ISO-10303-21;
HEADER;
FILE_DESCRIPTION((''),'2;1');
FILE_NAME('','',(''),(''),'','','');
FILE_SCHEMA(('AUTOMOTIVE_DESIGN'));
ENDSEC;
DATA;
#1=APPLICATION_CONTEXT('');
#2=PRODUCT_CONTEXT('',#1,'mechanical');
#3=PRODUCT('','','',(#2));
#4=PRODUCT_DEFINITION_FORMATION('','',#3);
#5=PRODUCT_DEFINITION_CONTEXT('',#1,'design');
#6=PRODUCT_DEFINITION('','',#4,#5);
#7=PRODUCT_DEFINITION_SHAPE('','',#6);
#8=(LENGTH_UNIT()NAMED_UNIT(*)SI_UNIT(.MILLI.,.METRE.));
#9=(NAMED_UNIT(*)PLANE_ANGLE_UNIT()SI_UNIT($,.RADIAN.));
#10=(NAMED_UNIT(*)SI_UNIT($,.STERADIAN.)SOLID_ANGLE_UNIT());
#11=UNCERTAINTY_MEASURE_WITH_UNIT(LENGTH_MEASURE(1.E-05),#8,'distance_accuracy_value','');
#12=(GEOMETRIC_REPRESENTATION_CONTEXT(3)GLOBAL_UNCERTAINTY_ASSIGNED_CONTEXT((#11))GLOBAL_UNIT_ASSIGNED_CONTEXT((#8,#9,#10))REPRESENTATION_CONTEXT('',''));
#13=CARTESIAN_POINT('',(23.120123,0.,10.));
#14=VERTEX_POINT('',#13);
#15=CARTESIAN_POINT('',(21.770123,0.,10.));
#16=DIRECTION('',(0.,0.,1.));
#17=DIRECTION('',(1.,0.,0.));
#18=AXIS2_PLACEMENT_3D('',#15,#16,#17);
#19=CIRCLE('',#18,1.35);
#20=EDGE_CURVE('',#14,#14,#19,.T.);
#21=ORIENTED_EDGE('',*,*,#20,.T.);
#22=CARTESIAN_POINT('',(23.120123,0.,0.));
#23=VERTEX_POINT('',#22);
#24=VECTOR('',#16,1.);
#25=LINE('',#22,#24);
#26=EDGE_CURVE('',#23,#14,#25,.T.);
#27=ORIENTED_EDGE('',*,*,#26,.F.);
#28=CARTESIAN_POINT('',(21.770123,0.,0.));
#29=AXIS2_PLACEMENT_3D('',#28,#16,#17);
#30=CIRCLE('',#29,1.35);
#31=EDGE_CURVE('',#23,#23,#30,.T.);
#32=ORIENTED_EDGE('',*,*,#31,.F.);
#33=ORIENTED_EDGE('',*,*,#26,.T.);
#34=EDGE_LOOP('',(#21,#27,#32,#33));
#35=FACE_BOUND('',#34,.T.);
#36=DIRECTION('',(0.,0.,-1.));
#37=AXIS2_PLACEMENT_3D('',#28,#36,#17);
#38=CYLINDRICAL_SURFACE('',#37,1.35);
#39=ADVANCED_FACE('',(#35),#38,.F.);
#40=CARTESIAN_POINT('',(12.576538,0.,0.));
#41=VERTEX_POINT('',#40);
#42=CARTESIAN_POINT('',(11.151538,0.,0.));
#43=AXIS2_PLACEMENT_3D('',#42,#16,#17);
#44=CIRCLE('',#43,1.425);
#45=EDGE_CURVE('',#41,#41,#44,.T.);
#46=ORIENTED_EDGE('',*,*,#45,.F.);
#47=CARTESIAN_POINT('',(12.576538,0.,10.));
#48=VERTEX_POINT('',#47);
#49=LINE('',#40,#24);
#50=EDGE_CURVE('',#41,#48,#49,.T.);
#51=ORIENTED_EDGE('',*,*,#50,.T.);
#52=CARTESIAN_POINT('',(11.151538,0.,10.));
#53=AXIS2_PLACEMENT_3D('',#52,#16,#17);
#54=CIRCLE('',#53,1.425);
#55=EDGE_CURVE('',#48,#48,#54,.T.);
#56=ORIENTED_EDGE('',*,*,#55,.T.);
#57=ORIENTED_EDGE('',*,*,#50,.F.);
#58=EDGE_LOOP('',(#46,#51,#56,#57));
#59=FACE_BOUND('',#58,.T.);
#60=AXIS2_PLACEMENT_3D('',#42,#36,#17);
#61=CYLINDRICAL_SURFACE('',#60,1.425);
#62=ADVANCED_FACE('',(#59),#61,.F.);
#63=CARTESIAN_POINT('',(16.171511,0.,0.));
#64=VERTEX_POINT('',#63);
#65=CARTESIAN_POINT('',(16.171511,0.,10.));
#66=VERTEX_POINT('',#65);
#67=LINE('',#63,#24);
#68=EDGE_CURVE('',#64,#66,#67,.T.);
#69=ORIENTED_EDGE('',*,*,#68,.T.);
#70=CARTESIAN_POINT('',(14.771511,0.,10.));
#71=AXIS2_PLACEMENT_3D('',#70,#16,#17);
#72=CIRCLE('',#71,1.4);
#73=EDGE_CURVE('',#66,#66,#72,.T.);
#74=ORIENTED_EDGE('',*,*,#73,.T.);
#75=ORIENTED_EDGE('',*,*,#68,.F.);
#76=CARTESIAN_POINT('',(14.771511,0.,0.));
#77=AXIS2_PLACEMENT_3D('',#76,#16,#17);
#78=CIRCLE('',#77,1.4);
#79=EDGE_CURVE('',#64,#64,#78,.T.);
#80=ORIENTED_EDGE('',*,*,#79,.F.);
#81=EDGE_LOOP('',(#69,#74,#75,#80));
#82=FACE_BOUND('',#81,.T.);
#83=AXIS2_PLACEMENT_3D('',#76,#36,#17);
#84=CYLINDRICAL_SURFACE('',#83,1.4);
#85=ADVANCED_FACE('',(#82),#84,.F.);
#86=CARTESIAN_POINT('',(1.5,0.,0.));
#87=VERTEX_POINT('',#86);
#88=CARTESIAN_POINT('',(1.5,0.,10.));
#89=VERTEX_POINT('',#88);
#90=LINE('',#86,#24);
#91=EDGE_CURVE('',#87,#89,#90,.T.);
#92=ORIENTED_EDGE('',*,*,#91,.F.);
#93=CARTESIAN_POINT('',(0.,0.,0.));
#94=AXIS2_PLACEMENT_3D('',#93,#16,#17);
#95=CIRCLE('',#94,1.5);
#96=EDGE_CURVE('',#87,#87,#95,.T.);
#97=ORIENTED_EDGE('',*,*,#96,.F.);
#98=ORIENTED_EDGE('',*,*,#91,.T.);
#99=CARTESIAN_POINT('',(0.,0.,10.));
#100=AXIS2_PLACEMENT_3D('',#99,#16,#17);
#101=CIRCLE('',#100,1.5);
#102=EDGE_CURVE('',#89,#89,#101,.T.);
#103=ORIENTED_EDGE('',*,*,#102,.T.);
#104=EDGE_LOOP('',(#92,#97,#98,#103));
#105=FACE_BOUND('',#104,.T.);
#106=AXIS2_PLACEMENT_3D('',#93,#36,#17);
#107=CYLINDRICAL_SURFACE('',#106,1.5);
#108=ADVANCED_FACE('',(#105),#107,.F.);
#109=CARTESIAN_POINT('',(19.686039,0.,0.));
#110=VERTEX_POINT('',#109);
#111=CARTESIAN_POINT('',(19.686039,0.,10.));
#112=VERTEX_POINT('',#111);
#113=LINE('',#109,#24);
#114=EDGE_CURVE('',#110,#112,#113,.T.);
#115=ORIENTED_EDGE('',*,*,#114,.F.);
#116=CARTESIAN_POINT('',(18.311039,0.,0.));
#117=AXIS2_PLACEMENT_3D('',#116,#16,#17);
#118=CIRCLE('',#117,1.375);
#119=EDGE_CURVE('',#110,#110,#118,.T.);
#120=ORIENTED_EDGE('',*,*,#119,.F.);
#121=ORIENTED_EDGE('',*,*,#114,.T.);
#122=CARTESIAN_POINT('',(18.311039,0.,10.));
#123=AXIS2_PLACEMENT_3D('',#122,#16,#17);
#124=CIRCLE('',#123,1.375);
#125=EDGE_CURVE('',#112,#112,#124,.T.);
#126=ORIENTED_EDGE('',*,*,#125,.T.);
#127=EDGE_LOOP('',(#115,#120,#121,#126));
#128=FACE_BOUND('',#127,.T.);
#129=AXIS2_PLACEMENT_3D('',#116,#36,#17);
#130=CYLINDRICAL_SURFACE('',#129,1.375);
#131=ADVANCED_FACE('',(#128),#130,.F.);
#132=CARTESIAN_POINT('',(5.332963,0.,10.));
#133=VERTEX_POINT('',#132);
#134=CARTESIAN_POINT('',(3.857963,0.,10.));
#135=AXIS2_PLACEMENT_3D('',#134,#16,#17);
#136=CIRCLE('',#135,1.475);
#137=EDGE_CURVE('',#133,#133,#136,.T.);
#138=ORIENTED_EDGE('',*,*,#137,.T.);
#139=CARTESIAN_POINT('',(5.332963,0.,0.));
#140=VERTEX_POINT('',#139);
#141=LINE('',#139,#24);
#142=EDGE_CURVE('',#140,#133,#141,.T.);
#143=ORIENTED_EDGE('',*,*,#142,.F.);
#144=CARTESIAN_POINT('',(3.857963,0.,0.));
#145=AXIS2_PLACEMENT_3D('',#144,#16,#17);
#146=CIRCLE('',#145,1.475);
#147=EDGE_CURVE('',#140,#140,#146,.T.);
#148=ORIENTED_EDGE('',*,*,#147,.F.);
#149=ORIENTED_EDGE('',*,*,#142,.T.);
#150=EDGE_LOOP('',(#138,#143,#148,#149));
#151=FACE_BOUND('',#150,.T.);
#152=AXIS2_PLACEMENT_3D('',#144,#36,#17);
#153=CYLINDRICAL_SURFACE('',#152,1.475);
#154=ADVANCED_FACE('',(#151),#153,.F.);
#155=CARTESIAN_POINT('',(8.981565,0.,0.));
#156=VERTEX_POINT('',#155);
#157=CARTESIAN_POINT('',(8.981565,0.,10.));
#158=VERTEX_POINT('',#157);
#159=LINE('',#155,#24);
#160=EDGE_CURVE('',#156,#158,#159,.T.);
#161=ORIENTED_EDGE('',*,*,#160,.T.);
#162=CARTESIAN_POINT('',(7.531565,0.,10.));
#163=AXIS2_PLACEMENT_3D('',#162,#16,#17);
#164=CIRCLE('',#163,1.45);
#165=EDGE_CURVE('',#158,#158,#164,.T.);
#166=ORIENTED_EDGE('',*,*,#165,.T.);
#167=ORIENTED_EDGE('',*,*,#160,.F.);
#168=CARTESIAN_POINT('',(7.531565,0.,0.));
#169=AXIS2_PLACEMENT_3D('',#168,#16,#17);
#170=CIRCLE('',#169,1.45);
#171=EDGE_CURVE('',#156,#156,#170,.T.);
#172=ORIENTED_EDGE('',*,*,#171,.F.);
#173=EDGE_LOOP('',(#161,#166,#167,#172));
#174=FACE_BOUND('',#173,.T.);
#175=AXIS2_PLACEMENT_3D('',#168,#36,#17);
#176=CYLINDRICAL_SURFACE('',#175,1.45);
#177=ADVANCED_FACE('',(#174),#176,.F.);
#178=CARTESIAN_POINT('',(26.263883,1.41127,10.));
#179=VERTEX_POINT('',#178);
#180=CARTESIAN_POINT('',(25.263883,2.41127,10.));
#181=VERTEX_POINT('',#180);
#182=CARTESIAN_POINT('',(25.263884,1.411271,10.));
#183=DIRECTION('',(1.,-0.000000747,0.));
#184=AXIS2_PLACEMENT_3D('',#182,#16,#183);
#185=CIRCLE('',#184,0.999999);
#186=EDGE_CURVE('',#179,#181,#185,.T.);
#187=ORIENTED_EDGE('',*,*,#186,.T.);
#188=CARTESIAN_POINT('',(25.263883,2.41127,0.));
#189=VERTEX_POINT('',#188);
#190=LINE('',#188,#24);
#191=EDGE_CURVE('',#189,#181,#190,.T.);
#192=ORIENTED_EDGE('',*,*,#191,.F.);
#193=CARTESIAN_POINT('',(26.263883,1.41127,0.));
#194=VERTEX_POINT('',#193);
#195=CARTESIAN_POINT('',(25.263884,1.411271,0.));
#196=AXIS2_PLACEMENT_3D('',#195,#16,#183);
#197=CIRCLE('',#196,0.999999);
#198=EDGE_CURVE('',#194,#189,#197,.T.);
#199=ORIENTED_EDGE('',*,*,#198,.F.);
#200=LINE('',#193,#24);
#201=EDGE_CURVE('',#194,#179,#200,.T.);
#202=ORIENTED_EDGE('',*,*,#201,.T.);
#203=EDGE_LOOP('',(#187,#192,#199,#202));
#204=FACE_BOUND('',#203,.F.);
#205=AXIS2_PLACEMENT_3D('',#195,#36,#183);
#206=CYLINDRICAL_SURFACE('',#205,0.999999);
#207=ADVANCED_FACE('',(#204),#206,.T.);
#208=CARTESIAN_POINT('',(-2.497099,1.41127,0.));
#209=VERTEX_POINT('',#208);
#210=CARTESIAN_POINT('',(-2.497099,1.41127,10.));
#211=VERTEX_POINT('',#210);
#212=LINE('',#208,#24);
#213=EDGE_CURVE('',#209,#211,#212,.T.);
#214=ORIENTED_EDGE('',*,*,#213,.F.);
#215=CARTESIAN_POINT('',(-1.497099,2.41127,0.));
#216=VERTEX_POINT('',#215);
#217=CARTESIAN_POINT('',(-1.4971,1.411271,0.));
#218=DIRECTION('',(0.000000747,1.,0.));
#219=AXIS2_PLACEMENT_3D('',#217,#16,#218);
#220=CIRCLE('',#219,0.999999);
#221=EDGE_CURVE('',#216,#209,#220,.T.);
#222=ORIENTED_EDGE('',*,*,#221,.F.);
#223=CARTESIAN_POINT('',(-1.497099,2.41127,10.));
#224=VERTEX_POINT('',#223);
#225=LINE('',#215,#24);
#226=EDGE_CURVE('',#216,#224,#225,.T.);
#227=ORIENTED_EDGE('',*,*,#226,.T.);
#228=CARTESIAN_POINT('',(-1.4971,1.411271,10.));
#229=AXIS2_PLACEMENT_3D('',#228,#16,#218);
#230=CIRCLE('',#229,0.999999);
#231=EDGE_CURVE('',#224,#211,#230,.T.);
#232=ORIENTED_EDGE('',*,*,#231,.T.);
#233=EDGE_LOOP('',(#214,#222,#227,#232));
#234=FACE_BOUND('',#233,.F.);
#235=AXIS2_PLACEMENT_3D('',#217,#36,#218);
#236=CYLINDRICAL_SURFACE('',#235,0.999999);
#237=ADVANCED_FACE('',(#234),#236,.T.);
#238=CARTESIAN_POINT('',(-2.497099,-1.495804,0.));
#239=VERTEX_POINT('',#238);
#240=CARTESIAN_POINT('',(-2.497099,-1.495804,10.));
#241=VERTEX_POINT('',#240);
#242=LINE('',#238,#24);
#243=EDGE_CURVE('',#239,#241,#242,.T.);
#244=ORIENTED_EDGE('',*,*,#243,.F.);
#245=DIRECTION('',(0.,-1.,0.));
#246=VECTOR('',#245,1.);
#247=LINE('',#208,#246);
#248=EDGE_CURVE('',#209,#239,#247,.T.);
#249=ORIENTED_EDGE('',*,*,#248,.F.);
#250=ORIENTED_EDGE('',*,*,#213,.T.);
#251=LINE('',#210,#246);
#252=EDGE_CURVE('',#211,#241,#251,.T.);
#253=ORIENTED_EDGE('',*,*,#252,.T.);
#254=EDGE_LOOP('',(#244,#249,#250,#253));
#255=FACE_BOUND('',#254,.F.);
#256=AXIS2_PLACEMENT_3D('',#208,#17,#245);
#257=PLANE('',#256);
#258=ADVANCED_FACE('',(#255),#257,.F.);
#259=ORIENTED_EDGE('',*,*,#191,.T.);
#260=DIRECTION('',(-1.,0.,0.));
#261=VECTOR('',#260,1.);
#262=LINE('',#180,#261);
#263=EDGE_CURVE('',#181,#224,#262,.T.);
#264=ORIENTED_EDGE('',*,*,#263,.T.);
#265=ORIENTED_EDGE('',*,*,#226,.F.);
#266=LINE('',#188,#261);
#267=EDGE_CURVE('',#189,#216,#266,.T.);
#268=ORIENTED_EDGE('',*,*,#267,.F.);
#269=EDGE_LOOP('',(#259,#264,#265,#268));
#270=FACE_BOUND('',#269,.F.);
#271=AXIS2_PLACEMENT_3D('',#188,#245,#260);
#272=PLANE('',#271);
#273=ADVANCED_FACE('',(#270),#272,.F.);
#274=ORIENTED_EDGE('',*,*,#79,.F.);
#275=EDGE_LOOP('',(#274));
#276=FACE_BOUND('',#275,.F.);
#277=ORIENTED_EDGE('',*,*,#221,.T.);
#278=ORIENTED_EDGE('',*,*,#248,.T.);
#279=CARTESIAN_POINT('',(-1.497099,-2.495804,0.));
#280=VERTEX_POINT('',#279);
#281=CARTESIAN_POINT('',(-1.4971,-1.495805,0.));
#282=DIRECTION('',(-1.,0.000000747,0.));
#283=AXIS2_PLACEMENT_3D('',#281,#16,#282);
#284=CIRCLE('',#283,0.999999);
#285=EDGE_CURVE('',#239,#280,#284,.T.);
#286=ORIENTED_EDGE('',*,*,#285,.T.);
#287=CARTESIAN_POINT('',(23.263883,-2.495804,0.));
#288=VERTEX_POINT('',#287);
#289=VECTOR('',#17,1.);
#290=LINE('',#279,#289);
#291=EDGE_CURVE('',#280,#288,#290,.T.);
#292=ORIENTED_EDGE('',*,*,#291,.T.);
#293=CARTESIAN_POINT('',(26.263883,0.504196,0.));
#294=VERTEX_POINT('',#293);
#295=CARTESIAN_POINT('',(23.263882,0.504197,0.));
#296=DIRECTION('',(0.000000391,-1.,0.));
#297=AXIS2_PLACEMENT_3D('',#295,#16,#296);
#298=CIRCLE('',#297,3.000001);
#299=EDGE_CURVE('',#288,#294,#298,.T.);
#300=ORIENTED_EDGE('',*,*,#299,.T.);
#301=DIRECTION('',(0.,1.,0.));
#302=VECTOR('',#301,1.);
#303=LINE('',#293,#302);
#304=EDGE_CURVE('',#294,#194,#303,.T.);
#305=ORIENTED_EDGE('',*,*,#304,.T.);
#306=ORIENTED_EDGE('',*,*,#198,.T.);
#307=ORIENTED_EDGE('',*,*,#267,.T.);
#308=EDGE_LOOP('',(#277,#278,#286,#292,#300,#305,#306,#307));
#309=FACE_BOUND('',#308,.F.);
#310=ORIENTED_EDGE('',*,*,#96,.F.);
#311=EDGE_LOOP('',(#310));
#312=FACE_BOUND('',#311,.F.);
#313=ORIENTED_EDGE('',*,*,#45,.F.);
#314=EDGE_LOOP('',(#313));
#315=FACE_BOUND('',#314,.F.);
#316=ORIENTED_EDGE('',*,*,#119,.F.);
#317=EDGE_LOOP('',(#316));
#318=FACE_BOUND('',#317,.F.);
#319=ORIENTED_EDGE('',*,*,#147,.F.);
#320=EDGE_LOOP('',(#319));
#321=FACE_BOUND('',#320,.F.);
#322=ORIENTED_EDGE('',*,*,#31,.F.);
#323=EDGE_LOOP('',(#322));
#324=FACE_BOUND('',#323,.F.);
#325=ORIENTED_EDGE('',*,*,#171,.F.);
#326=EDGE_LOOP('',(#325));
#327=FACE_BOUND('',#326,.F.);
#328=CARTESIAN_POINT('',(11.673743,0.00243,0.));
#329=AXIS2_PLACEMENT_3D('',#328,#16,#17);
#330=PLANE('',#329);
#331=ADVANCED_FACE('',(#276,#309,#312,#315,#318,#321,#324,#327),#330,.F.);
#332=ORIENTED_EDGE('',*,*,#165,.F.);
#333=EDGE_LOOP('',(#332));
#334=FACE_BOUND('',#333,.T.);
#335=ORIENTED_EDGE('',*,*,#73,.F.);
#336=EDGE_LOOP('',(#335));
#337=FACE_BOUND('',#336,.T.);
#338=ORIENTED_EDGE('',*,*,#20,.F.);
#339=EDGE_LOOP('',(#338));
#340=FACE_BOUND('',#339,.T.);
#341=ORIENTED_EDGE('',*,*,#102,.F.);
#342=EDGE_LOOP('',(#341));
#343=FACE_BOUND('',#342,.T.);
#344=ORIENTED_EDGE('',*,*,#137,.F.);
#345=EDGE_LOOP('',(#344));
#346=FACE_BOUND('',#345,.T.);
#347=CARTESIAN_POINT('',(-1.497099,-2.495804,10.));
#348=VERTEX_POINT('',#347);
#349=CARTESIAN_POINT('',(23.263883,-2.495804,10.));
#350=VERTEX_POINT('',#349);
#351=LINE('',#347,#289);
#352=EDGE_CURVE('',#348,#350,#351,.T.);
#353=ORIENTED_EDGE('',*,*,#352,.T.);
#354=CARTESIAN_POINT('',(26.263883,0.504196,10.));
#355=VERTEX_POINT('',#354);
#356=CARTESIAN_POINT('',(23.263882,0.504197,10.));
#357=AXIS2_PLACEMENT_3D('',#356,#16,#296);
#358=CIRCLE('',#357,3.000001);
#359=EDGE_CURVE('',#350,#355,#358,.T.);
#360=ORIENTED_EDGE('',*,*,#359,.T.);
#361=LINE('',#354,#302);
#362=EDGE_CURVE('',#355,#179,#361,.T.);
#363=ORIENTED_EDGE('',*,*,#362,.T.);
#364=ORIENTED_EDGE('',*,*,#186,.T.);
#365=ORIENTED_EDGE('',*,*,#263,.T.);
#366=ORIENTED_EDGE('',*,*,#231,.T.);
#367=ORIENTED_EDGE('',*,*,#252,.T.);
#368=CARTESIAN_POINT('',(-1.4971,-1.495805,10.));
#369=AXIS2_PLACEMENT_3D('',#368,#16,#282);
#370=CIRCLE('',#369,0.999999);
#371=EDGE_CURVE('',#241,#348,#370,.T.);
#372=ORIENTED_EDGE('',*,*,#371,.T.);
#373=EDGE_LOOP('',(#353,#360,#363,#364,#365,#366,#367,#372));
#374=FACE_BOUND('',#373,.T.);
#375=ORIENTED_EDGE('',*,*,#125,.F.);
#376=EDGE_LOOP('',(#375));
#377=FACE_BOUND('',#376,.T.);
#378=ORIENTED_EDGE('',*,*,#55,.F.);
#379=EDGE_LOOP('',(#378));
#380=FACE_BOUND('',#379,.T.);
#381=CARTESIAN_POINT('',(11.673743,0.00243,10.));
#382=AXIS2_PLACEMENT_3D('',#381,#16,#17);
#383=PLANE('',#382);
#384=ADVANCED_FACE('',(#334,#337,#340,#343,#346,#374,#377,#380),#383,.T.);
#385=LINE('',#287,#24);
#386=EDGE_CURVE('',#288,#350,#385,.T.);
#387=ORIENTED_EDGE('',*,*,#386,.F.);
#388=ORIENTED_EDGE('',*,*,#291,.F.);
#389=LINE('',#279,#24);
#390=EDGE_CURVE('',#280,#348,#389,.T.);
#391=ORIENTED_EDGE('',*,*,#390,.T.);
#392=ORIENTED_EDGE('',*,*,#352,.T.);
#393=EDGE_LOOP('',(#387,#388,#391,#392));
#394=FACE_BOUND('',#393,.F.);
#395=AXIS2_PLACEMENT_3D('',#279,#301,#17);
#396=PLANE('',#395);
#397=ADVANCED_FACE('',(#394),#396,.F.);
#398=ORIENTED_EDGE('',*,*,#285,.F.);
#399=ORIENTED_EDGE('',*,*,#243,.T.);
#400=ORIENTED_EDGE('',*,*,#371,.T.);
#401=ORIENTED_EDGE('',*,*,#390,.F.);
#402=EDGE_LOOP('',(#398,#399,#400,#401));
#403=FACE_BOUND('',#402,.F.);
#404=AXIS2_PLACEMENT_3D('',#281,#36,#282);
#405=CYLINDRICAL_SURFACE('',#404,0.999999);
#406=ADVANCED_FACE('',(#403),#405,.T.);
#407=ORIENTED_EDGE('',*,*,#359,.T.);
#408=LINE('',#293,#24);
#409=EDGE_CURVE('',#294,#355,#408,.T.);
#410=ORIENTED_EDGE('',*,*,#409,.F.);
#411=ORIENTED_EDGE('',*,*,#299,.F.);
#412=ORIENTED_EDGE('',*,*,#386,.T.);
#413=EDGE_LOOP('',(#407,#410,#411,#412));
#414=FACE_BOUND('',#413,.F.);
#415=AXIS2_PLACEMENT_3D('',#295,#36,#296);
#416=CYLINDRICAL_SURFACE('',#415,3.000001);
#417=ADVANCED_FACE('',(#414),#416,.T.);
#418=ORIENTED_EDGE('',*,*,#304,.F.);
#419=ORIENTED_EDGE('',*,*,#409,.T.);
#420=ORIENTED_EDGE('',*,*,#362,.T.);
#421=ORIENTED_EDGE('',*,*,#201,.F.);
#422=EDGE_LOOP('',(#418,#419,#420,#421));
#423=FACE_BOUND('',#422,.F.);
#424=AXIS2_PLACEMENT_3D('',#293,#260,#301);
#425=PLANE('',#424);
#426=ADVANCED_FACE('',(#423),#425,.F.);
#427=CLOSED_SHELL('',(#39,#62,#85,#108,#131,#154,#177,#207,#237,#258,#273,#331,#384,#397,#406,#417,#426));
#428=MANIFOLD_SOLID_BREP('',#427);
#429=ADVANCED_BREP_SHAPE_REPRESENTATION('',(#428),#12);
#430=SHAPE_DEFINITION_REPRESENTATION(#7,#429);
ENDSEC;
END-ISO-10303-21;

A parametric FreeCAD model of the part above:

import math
import FreeCAD as App
import Part
import Sketcher
from FreeCAD import Vector

doc = App.newDocument("Part")
body = doc.addObject("PartDesign::Body", "Body")

sketch1 = body.newObject("Sketcher::SketchObject", "Sketch")
sketch1.AttachmentSupport = (doc.getObject("XY_Plane"), [""])
sketch1.MapMode = "FlatFace"
sketch1.addGeometry([
    Part.LineSegment(Vector(25.3, 2.4, 0), Vector(-1.5, 2.4, 0)),
    Part.ArcOfCircle(Part.Circle(Vector(-1.5, 1.4, 0), Vector(0, 0, 1), 1), math.radians(90), math.radians(180)),
    Part.LineSegment(Vector(-2.5, 1.4, 0), Vector(-2.5, -1.5, 0)),
    Part.ArcOfCircle(Part.Circle(Vector(-1.5, -1.5, 0), Vector(0, 0, 1), 1), math.radians(180), math.radians(270)),
    Part.LineSegment(Vector(-1.5, -2.5, 0), Vector(23.3, -2.5, 0)),
    Part.ArcOfCircle(Part.Circle(Vector(23.3, 0.5, 0), Vector(0, 0, 1), 3), math.radians(-90), math.radians(0)),
    Part.LineSegment(Vector(26.3, 0.5, 0), Vector(26.3, 1.4, 0)),
    Part.ArcOfCircle(Part.Circle(Vector(25.3, 1.4, 0), Vector(0, 0, 1), 1), math.radians(0), math.radians(90)),
    Part.Circle(Vector(0, 0, 0), Vector(0, 0, 1), 1.5),
    Part.Circle(Vector(3.9, 0, 0), Vector(0, 0, 1), 1.5),
    Part.Circle(Vector(7.5, 0, 0), Vector(0, 0, 1), 1.4),
    Part.Circle(Vector(11.2, 0, 0), Vector(0, 0, 1), 1.4),
    Part.Circle(Vector(14.8, 0, 0), Vector(0, 0, 1), 1.4),
    Part.Circle(Vector(18.3, 0, 0), Vector(0, 0, 1), 1.4),
    Part.Circle(Vector(21.8, 0, 0), Vector(0, 0, 1), 1.4),
], False)
sketch1.addConstraint([
    Sketcher.Constraint("Tangent", 0, 2, 1, 1),
    Sketcher.Constraint("Tangent", 1, 2, 2, 1),
    Sketcher.Constraint("Tangent", 2, 2, 3, 1),
    Sketcher.Constraint("Tangent", 3, 2, 4, 1),
    Sketcher.Constraint("Tangent", 4, 2, 5, 1),
    Sketcher.Constraint("Tangent", 5, 2, 6, 1),
    Sketcher.Constraint("Tangent", 6, 2, 7, 1),
    Sketcher.Constraint("Tangent", 7, 2, 0, 1),
    Sketcher.Constraint("Horizontal", 0),
    Sketcher.Constraint("Vertical", 2),
    Sketcher.Constraint("Horizontal", 4),
    Sketcher.Constraint("Vertical", 6),
    Sketcher.Constraint("Coincident", 8, 3, -1, 1),
    Sketcher.Constraint("Equal", 1, 3),
    Sketcher.Constraint("Equal", 3, 7),
    Sketcher.Constraint("PointOnObject", 9, 3, -1),
    Sketcher.Constraint("PointOnObject", 10, 3, -1),
    Sketcher.Constraint("PointOnObject", 11, 3, -1),
    Sketcher.Constraint("PointOnObject", 12, 3, -1),
    Sketcher.Constraint("PointOnObject", 13, 3, -1),
    Sketcher.Constraint("PointOnObject", 14, 3, -1),
    Sketcher.Constraint("Diameter", 8, 3.0),
    Sketcher.Constraint("Radius", 1, 0.999999),
    Sketcher.Constraint("Radius", 5, 3.000001),
    Sketcher.Constraint("Diameter", 10, 2.9),
    Sketcher.Constraint("Diameter", 12, 2.8),
    Sketcher.Constraint("Diameter", 14, 2.7),
    Sketcher.Constraint("Diameter", 9, 2.95),
    Sketcher.Constraint("Diameter", 11, 2.85),
    Sketcher.Constraint("Diameter", 13, 2.75),
    Sketcher.Constraint("DistanceX", 0, 2, 0, 1, 26.760982),
    Sketcher.Constraint("DistanceX", 1, 3, -1, 1, 1.4971),
    Sketcher.Constraint("DistanceX", 9, 3, 10, 3, 3.673602),
    Sketcher.Constraint("DistanceX", 11, 3, 13, 3, 7.159501),
    Sketcher.Constraint("DistanceY", 2, 2, 2, 1, 2.907074),
    Sketcher.Constraint("DistanceY", -1, 1, 1, 3, 1.411271),
    Sketcher.Constraint("DistanceX", -1, 1, 12, 3, 14.771511),
    Sketcher.Constraint("DistanceX", -1, 1, 13, 3, 18.311039),
    Sketcher.Constraint("DistanceX", 9, 3, 5, 3, 19.405919),
    Sketcher.Constraint("DistanceX", 14, 3, 5, 3, 1.493759),
])
pad1 = body.newObject("PartDesign::Pad", "Pad")
pad1.Profile = sketch1
pad1.Length = 10

doc.recompute()
